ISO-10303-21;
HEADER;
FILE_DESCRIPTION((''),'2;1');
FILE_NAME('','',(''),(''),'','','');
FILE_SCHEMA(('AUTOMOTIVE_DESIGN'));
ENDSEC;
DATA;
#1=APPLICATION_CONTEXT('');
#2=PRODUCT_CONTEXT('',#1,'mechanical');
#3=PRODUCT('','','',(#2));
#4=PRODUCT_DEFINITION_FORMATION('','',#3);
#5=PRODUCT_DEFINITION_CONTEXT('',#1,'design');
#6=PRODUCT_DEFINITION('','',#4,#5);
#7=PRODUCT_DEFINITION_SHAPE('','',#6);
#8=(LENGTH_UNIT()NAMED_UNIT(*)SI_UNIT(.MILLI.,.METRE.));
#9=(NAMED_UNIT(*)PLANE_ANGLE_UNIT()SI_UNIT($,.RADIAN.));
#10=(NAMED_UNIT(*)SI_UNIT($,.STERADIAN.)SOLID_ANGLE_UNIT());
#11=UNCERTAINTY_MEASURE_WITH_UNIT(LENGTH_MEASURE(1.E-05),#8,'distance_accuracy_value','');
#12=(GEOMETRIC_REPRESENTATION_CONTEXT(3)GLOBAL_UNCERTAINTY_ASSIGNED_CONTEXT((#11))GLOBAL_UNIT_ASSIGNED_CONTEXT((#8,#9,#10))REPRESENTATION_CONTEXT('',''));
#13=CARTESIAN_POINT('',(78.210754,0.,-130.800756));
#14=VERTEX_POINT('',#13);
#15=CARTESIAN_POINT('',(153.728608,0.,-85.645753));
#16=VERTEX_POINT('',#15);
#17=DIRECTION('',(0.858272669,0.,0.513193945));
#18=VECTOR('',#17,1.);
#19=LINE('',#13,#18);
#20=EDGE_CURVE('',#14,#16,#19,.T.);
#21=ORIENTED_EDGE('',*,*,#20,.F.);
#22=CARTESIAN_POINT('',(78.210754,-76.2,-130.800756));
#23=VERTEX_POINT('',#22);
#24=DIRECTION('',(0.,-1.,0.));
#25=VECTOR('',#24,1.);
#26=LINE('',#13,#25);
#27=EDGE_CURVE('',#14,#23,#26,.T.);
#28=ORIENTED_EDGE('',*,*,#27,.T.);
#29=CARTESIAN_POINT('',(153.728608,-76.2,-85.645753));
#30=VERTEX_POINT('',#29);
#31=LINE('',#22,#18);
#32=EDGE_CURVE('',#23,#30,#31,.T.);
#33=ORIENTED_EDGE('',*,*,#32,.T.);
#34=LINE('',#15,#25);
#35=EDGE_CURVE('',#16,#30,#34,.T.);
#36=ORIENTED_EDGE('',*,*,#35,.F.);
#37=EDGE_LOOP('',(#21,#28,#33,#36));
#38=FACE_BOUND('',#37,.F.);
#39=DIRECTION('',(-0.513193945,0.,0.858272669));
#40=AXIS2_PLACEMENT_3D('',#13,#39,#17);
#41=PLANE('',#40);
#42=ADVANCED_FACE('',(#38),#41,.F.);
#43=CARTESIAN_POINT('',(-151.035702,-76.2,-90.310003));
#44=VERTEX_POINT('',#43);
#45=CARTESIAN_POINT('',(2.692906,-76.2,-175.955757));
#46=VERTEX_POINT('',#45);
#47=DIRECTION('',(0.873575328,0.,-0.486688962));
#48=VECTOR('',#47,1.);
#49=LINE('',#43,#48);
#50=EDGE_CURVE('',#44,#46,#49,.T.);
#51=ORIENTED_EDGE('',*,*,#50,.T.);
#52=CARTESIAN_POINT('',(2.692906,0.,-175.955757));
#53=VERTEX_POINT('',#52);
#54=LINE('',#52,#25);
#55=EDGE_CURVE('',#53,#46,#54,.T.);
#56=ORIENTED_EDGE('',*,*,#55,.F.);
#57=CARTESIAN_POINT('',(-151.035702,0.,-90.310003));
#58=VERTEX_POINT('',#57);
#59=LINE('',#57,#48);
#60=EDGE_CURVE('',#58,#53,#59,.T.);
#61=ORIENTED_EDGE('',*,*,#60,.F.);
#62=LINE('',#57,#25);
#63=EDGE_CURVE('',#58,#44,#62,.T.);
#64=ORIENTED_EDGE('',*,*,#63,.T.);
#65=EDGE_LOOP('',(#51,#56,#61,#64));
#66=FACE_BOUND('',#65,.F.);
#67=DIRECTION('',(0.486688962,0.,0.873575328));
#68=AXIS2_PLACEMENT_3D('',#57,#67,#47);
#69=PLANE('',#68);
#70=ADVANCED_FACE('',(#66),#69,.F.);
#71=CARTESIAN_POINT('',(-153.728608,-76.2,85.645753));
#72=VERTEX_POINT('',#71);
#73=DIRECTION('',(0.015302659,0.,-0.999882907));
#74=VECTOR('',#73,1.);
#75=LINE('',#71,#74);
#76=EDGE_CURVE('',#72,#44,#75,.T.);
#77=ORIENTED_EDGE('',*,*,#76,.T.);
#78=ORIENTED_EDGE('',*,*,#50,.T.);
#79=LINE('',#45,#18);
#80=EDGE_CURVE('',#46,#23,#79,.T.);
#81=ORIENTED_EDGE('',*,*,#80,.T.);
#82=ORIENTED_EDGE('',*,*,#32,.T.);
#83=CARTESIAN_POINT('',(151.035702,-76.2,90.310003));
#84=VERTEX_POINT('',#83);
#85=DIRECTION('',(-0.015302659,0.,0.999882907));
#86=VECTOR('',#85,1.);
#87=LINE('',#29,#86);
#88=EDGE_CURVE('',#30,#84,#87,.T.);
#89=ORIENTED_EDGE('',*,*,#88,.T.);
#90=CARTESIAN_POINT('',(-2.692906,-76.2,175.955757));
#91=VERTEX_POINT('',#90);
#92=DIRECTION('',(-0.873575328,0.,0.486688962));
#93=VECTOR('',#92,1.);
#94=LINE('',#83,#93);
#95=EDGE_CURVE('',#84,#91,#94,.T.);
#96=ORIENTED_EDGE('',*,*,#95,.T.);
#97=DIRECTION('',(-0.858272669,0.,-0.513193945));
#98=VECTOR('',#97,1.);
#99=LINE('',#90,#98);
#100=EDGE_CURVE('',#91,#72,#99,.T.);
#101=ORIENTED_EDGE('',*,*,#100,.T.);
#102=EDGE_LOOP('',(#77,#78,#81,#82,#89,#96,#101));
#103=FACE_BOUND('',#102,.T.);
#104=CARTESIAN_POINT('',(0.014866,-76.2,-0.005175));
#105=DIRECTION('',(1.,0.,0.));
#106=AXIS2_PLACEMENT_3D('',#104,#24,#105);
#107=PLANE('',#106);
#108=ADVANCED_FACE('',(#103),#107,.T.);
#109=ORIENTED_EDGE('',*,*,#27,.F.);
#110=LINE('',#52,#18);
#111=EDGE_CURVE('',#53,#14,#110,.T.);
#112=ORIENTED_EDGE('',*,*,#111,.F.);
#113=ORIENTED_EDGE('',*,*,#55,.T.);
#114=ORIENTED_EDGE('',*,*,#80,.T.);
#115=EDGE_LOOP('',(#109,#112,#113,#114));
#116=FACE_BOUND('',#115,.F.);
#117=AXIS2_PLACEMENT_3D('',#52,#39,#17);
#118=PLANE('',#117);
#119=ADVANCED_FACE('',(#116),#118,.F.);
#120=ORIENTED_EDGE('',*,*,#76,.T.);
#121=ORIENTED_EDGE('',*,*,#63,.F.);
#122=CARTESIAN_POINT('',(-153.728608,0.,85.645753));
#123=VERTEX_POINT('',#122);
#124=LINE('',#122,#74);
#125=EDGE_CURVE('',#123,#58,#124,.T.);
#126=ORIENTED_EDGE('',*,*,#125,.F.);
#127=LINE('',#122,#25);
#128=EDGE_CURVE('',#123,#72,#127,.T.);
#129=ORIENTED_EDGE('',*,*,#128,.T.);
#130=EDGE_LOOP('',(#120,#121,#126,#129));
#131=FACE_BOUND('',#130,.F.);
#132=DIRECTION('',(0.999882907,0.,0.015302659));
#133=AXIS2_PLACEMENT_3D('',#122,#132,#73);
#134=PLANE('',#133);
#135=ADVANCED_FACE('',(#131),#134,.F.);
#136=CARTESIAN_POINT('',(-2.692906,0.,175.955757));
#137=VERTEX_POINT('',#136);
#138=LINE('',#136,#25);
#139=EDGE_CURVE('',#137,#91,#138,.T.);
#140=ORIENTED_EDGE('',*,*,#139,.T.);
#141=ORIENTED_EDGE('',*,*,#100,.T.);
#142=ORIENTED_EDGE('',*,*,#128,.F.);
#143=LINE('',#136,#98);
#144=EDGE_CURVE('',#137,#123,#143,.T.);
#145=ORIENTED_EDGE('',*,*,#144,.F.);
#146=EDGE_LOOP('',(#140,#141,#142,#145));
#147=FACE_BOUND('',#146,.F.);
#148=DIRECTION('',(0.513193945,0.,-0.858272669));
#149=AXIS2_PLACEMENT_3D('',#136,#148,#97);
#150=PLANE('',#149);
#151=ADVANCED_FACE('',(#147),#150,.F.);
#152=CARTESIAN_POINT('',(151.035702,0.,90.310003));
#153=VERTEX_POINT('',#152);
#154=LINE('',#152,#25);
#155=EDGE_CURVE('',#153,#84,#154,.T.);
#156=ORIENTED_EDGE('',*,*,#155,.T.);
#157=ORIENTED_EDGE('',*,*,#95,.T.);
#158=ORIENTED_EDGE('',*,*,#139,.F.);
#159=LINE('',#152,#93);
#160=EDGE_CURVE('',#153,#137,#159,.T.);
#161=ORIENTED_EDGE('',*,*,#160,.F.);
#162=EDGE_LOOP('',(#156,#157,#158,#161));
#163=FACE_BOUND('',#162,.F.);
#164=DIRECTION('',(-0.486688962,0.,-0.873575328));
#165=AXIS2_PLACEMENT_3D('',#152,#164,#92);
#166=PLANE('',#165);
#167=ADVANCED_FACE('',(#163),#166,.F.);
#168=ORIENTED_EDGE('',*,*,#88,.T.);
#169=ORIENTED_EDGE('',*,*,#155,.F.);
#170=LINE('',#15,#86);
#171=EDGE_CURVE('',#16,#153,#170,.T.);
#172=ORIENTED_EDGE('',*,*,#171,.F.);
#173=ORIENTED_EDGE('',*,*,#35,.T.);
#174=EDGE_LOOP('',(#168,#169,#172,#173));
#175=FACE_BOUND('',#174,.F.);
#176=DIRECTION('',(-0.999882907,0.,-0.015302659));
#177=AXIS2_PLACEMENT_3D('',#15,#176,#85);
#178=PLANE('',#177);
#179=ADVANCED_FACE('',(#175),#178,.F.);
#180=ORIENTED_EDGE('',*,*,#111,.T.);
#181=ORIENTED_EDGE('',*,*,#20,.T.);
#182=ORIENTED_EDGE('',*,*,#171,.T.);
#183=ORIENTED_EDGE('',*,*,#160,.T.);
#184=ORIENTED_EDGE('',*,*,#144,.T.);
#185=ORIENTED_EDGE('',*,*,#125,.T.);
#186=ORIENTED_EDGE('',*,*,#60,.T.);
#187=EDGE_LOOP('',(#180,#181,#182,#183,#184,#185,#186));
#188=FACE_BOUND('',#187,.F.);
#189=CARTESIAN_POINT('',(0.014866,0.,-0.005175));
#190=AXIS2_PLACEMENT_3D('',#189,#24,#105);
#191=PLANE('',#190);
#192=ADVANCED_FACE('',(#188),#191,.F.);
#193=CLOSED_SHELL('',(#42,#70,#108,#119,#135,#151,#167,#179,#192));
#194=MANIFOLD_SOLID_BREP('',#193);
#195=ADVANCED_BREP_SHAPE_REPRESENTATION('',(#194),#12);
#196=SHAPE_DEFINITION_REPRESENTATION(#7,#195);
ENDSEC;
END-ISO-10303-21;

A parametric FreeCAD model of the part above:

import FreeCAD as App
import Part
import Sketcher
from FreeCAD import Vector
Q = App.Units.Quantity

doc = App.newDocument("Part")
body = doc.addObject("PartDesign::Body", "Body")

# Sketch on XZ plane
sketch1 = doc.addObject("Sketcher::SketchObject", "Sketch")
body.addObject(sketch1)
sketch1.AttachmentSupport = (doc.XZ_Plane, [""])
sketch1.MapMode = "FlatFace"
sketch1.addGeometry(Part.LineSegment(Vector(-3, 176, 0), Vector(-154, 86, 0)), False)
sketch1.addGeometry(Part.LineSegment(Vector(-154, 86, 0), Vector(-151, -90, 0)), False)
sketch1.addGeometry(Part.LineSegment(Vector(-151, -90, 0), Vector(3, -176, 0)), False)
sketch1.addGeometry(Part.LineSegment(Vector(3, -176, 0), Vector(78, -131, 0)), False)
sketch1.addGeometry(Part.LineSegment(Vector(78, -131, 0), Vector(154, -86, 0)), False)
sketch1.addGeometry(Part.LineSegment(Vector(154, -86, 0), Vector(151, 90, 0)), False)
sketch1.addGeometry(Part.LineSegment(Vector(151, 90, 0), Vector(-3, 176, 0)), False)
sketch1.addConstraint(Sketcher.Constraint("Coincident", 0, 2, 1, 1))
sketch1.addConstraint(Sketcher.Constraint("Coincident", 1, 2, 2, 1))
sketch1.addConstraint(Sketcher.Constraint("Coincident", 2, 2, 3, 1))
sketch1.addConstraint(Sketcher.Constraint("Coincident", 3, 2, 4, 1))
sketch1.addConstraint(Sketcher.Constraint("Coincident", 4, 2, 5, 1))
sketch1.addConstraint(Sketcher.Constraint("Coincident", 5, 2, 6, 1))
sketch1.addConstraint(Sketcher.Constraint("Coincident", 6, 2, 0, 1))
sketch1.addConstraint(Sketcher.Constraint("Symmetric", 0, 2, 4, 2, -1, 1))
sketch1.addConstraint(Sketcher.Constraint("Symmetric", 1, 2, 5, 2, -1, 1))
sketch1.addConstraint(Sketcher.Constraint("Symmetric", 2, 2, 6, 2, -1, 1))
sketch1.addConstraint(Sketcher.Constraint("Parallel", 0, 3))
sketch1.addConstraint(Sketcher.Constraint("Equal", 0, 1))
sketch1.addConstraint(Sketcher.Constraint("Equal", 1, 2))
sketch1.addConstraint(Sketcher.Constraint("DistanceX", 1, 2, -1, 1, 151.035702))
sketch1.addConstraint(Sketcher.Constraint("DistanceY", 2, 2, 3, 2, 45.155))
sketch1.addConstraint(Sketcher.Constraint("DistanceX", 2, 2, 4, 2, 151.035702))
sketch1.addConstraint(Sketcher.Constraint("DistanceX", 0, 2, -1, 1, 153.728608))
sketch1.addConstraint(Sketcher.Constraint("DistanceY", 2, 2, 0, 2, 261.60151))
pad1 = doc.addObject("PartDesign::Pad", "Pad")
body.addObject(pad1)
pad1.Profile = sketch1
pad1.Length = Q("3 in")

doc.recompute()
